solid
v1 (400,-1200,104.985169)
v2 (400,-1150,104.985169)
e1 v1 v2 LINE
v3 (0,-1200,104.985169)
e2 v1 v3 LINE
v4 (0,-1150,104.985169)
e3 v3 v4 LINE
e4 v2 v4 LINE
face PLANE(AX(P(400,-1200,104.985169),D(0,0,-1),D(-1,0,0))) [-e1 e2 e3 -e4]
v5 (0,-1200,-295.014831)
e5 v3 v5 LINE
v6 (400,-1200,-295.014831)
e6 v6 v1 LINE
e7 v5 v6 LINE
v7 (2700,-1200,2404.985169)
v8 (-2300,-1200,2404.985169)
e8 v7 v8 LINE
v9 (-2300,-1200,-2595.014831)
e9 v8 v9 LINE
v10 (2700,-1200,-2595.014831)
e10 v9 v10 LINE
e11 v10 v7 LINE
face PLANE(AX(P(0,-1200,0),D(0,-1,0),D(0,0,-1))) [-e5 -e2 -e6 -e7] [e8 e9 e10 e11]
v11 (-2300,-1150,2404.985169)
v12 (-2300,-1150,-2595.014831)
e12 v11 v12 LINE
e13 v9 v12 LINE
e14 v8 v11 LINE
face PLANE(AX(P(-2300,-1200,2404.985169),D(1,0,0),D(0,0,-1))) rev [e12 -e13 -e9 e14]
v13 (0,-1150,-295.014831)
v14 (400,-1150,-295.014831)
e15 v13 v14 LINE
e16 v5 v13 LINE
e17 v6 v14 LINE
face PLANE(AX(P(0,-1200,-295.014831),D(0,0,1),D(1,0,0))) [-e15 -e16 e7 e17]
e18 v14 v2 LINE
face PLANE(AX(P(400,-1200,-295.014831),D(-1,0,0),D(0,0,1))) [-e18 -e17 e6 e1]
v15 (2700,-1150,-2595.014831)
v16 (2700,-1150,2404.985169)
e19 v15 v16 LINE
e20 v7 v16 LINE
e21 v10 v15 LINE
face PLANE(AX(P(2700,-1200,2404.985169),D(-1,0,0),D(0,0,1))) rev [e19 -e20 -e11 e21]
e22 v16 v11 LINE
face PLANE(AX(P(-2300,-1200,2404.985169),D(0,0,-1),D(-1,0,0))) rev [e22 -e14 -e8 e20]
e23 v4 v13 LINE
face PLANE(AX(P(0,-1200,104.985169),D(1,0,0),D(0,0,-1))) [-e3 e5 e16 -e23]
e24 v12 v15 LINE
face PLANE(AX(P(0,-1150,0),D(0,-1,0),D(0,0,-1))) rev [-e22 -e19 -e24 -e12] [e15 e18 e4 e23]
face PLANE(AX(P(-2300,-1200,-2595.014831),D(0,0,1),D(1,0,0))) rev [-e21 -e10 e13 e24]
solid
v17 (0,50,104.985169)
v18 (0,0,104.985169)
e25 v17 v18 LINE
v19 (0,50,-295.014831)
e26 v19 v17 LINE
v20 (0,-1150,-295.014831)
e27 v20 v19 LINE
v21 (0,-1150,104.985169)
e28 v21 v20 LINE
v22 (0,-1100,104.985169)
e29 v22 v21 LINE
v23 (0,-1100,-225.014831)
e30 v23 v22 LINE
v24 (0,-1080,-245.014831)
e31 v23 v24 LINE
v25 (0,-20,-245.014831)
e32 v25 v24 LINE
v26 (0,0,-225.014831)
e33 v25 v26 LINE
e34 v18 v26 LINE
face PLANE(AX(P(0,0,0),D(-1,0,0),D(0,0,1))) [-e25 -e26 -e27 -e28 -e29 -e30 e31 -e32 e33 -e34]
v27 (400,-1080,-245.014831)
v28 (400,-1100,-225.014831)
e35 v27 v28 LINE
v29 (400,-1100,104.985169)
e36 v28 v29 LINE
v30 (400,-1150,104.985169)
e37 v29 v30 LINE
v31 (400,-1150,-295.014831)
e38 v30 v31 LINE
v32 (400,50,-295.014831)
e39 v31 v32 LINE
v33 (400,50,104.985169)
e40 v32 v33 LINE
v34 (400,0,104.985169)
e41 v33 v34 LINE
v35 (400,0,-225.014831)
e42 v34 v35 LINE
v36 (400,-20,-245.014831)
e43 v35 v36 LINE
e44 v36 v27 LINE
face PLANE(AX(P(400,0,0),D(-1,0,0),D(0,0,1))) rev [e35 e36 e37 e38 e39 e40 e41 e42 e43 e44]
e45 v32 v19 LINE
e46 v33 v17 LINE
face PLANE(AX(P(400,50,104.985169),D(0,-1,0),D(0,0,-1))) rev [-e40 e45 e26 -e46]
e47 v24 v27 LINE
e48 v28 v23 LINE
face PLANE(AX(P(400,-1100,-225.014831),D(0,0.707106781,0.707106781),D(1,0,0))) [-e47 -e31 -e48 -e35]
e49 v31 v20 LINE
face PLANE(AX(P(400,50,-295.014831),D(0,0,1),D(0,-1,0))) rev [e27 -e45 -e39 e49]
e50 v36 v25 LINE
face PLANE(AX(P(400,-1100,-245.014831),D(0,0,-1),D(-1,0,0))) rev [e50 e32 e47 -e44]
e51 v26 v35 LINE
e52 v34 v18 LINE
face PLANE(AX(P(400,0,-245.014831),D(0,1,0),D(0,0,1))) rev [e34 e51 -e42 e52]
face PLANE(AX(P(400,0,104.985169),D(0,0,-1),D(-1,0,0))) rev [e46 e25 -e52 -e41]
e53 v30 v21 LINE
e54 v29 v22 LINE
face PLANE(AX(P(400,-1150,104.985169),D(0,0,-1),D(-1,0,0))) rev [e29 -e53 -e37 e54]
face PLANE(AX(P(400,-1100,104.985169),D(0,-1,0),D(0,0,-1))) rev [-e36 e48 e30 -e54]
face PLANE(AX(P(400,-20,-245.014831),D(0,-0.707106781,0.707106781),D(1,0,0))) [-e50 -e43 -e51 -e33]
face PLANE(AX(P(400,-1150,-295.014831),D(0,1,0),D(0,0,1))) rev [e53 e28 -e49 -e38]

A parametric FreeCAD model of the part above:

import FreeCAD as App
import Part
import Sketcher
from FreeCAD import Vector
Q = App.Units.Quantity


def edges_at(feature, points):
    """Names of the edges that pass closest to the given points."""
    edges = feature.Shape.Edges
    near = lambda p: min(range(len(edges)), key=lambda i: edges[i].distToShape(Part.Vertex(*p))[0])
    return sorted({f"Edge{near(p) + 1}" for p in points})

doc = App.newDocument("Part")
body = doc.addObject("PartDesign::Body", "Body")

# Sketch on YZ plane
sketch1 = body.newObject("Sketcher::SketchObject", "Sketch")
sketch1.AttachmentSupport = (doc.getObject("YZ_Plane"), [""])
sketch1.MapMode = "FlatFace"
sketch1.addGeometry([
    Part.LineSegment(Vector(50, -295, 0), Vector(50, 105, 0)),  # 0
    Part.LineSegment(Vector(50, 105, 0), Vector(0, 105, 0)),  # 1
    Part.LineSegment(Vector(0, 105, 0), Vector(0, -245, 0)),  # 2
    Part.LineSegment(Vector(0, -245, 0), Vector(-1100, -245, 0)),  # 3
    Part.LineSegment(Vector(-1100, -245, 0), Vector(-1100, 105, 0)),  # 4
    Part.LineSegment(Vector(-1100, 105, 0), Vector(-1150, 105, 0)),  # 5
    Part.LineSegment(Vector(-1150, 105, 0), Vector(-1150, -295, 0)),  # 6
    Part.LineSegment(Vector(-1150, -295, 0), Vector(50, -295, 0)),  # 7
], False)
sketch1.addConstraint([
    Sketcher.Constraint("Coincident", 0, 2, 1, 1),
    Sketcher.Constraint("Coincident", 1, 2, 2, 1),
    Sketcher.Constraint("Coincident", 2, 2, 3, 1),
    Sketcher.Constraint("Coincident", 3, 2, 4, 1),
    Sketcher.Constraint("Coincident", 4, 2, 5, 1),
    Sketcher.Constraint("Coincident", 5, 2, 6, 1),
    Sketcher.Constraint("Coincident", 6, 2, 7, 1),
    Sketcher.Constraint("Coincident", 7, 2, 0, 1),
    Sketcher.Constraint("Vertical", 0),
    Sketcher.Constraint("Horizontal", 1),
    Sketcher.Constraint("Vertical", 2),
    Sketcher.Constraint("Horizontal", 3),
    Sketcher.Constraint("Vertical", 4),
    Sketcher.Constraint("Horizontal", 5),
    Sketcher.Constraint("Vertical", 6),
    Sketcher.Constraint("Horizontal", 7),
    Sketcher.Constraint("PointOnObject", 1, 2, -2),
    Sketcher.Constraint("Horizontal", 1, 2, 4, 2),
    Sketcher.Constraint("Equal", 1, 5),
    Sketcher.Constraint("DistanceX", 1, 2, 1, 1, Q("50 mm")),
    Sketcher.Constraint("DistanceX", 3, 2, 3, 1, Q("1100 mm")),
    Sketcher.Constraint("DistanceY", 0, 1, 0, 2, Q("400 mm")),
    Sketcher.Constraint("DistanceY", 2, 2, 2, 1, Q("350 mm")),
    Sketcher.Constraint("DistanceY", -1, 1, 0, 2, Q("104.985169 mm")),
])
pad1 = body.newObject("PartDesign::Pad", "Pad")
pad1.Profile = sketch1
pad1.Length = 400
doc.recompute()

chamfer = body.newObject("PartDesign::Chamfer", "Chamfer")
chamfer.Base = (pad1, edges_at(pad1, [(200, -1100, -245.015), (200, 0, -245.015)]))
chamfer.Size = 20
body2 = doc.addObject("PartDesign::Body", "Body001")

# Sketch on XZ plane
sketch2 = body2.newObject("Sketcher::SketchObject", "Sketch001")
sketch2.AttachmentSupport = (doc.getObject("XZ_Plane001"), [""])
sketch2.MapMode = "FlatFace"
sketch2.AttachmentOffset = App.Placement(Vector(0, 0, 1150), App.Rotation())
sketch2.addGeometry([
    Part.LineSegment(Vector(-2300, 2405, 0), Vector(-2300, -2595, 0)),  # 0
    Part.LineSegment(Vector(-2300, -2595, 0), Vector(2700, -2595, 0)),  # 1
    Part.LineSegment(Vector(2700, -2595, 0), Vector(2700, 2405, 0)),  # 2
    Part.LineSegment(Vector(2700, 2405, 0), Vector(-2300, 2405, 0)),  # 3
    Part.LineSegment(Vector(400, -295, 0), Vector(0, -295, 0)),  # 4
    Part.LineSegment(Vector(0, -295, 0), Vector(0, 105, 0)),  # 5
    Part.LineSegment(Vector(0, 105, 0), Vector(400, 105, 0)),  # 6
    Part.LineSegment(Vector(400, 105, 0), Vector(400, -295, 0)),  # 7
], False)
sketch2.addConstraint([
    Sketcher.Constraint("Coincident", 0, 2, 1, 1),
    Sketcher.Constraint("Coincident", 1, 2, 2, 1),
    Sketcher.Constraint("Coincident", 2, 2, 3, 1),
    Sketcher.Constraint("Coincident", 3, 2, 0, 1),
    Sketcher.Constraint("Coincident", 4, 2, 5, 1),
    Sketcher.Constraint("Coincident", 5, 2, 6, 1),
    Sketcher.Constraint("Coincident", 6, 2, 7, 1),
    Sketcher.Constraint("Coincident", 7, 2, 4, 1),
    Sketcher.Constraint("Vertical", 0),
    Sketcher.Constraint("Horizontal", 1),
    Sketcher.Constraint("Vertical", 2),
    Sketcher.Constraint("Horizontal", 3),
    Sketcher.Constraint("Horizontal", 4),
    Sketcher.Constraint("Vertical", 5),
    Sketcher.Constraint("Horizontal", 6),
    Sketcher.Constraint("Vertical", 7),
    Sketcher.Constraint("PointOnObject", 4, 2, -2),
    Sketcher.Constraint("Equal", 3, 0),
    Sketcher.Constraint("Equal", 6, 5),
    Sketcher.Constraint("DistanceX", 1, 1, 1, 2, Q("5000 mm")),
    Sketcher.Constraint("DistanceX", 4, 2, 4, 1, Q("400 mm")),
    Sketcher.Constraint("DistanceX", 0, 2, -1, 1, Q("2300 mm")),
    Sketcher.Constraint("DistanceY", 0, 2, 4, 2, Q("2300 mm")),
    Sketcher.Constraint("DistanceY", 0, 2, -1, 1, Q("2595.014831 mm")),
])
pad2 = body2.newObject("PartDesign::Pad", "Pad001")
pad2.Profile = sketch2
pad2.Length = 50

doc.recompute()
